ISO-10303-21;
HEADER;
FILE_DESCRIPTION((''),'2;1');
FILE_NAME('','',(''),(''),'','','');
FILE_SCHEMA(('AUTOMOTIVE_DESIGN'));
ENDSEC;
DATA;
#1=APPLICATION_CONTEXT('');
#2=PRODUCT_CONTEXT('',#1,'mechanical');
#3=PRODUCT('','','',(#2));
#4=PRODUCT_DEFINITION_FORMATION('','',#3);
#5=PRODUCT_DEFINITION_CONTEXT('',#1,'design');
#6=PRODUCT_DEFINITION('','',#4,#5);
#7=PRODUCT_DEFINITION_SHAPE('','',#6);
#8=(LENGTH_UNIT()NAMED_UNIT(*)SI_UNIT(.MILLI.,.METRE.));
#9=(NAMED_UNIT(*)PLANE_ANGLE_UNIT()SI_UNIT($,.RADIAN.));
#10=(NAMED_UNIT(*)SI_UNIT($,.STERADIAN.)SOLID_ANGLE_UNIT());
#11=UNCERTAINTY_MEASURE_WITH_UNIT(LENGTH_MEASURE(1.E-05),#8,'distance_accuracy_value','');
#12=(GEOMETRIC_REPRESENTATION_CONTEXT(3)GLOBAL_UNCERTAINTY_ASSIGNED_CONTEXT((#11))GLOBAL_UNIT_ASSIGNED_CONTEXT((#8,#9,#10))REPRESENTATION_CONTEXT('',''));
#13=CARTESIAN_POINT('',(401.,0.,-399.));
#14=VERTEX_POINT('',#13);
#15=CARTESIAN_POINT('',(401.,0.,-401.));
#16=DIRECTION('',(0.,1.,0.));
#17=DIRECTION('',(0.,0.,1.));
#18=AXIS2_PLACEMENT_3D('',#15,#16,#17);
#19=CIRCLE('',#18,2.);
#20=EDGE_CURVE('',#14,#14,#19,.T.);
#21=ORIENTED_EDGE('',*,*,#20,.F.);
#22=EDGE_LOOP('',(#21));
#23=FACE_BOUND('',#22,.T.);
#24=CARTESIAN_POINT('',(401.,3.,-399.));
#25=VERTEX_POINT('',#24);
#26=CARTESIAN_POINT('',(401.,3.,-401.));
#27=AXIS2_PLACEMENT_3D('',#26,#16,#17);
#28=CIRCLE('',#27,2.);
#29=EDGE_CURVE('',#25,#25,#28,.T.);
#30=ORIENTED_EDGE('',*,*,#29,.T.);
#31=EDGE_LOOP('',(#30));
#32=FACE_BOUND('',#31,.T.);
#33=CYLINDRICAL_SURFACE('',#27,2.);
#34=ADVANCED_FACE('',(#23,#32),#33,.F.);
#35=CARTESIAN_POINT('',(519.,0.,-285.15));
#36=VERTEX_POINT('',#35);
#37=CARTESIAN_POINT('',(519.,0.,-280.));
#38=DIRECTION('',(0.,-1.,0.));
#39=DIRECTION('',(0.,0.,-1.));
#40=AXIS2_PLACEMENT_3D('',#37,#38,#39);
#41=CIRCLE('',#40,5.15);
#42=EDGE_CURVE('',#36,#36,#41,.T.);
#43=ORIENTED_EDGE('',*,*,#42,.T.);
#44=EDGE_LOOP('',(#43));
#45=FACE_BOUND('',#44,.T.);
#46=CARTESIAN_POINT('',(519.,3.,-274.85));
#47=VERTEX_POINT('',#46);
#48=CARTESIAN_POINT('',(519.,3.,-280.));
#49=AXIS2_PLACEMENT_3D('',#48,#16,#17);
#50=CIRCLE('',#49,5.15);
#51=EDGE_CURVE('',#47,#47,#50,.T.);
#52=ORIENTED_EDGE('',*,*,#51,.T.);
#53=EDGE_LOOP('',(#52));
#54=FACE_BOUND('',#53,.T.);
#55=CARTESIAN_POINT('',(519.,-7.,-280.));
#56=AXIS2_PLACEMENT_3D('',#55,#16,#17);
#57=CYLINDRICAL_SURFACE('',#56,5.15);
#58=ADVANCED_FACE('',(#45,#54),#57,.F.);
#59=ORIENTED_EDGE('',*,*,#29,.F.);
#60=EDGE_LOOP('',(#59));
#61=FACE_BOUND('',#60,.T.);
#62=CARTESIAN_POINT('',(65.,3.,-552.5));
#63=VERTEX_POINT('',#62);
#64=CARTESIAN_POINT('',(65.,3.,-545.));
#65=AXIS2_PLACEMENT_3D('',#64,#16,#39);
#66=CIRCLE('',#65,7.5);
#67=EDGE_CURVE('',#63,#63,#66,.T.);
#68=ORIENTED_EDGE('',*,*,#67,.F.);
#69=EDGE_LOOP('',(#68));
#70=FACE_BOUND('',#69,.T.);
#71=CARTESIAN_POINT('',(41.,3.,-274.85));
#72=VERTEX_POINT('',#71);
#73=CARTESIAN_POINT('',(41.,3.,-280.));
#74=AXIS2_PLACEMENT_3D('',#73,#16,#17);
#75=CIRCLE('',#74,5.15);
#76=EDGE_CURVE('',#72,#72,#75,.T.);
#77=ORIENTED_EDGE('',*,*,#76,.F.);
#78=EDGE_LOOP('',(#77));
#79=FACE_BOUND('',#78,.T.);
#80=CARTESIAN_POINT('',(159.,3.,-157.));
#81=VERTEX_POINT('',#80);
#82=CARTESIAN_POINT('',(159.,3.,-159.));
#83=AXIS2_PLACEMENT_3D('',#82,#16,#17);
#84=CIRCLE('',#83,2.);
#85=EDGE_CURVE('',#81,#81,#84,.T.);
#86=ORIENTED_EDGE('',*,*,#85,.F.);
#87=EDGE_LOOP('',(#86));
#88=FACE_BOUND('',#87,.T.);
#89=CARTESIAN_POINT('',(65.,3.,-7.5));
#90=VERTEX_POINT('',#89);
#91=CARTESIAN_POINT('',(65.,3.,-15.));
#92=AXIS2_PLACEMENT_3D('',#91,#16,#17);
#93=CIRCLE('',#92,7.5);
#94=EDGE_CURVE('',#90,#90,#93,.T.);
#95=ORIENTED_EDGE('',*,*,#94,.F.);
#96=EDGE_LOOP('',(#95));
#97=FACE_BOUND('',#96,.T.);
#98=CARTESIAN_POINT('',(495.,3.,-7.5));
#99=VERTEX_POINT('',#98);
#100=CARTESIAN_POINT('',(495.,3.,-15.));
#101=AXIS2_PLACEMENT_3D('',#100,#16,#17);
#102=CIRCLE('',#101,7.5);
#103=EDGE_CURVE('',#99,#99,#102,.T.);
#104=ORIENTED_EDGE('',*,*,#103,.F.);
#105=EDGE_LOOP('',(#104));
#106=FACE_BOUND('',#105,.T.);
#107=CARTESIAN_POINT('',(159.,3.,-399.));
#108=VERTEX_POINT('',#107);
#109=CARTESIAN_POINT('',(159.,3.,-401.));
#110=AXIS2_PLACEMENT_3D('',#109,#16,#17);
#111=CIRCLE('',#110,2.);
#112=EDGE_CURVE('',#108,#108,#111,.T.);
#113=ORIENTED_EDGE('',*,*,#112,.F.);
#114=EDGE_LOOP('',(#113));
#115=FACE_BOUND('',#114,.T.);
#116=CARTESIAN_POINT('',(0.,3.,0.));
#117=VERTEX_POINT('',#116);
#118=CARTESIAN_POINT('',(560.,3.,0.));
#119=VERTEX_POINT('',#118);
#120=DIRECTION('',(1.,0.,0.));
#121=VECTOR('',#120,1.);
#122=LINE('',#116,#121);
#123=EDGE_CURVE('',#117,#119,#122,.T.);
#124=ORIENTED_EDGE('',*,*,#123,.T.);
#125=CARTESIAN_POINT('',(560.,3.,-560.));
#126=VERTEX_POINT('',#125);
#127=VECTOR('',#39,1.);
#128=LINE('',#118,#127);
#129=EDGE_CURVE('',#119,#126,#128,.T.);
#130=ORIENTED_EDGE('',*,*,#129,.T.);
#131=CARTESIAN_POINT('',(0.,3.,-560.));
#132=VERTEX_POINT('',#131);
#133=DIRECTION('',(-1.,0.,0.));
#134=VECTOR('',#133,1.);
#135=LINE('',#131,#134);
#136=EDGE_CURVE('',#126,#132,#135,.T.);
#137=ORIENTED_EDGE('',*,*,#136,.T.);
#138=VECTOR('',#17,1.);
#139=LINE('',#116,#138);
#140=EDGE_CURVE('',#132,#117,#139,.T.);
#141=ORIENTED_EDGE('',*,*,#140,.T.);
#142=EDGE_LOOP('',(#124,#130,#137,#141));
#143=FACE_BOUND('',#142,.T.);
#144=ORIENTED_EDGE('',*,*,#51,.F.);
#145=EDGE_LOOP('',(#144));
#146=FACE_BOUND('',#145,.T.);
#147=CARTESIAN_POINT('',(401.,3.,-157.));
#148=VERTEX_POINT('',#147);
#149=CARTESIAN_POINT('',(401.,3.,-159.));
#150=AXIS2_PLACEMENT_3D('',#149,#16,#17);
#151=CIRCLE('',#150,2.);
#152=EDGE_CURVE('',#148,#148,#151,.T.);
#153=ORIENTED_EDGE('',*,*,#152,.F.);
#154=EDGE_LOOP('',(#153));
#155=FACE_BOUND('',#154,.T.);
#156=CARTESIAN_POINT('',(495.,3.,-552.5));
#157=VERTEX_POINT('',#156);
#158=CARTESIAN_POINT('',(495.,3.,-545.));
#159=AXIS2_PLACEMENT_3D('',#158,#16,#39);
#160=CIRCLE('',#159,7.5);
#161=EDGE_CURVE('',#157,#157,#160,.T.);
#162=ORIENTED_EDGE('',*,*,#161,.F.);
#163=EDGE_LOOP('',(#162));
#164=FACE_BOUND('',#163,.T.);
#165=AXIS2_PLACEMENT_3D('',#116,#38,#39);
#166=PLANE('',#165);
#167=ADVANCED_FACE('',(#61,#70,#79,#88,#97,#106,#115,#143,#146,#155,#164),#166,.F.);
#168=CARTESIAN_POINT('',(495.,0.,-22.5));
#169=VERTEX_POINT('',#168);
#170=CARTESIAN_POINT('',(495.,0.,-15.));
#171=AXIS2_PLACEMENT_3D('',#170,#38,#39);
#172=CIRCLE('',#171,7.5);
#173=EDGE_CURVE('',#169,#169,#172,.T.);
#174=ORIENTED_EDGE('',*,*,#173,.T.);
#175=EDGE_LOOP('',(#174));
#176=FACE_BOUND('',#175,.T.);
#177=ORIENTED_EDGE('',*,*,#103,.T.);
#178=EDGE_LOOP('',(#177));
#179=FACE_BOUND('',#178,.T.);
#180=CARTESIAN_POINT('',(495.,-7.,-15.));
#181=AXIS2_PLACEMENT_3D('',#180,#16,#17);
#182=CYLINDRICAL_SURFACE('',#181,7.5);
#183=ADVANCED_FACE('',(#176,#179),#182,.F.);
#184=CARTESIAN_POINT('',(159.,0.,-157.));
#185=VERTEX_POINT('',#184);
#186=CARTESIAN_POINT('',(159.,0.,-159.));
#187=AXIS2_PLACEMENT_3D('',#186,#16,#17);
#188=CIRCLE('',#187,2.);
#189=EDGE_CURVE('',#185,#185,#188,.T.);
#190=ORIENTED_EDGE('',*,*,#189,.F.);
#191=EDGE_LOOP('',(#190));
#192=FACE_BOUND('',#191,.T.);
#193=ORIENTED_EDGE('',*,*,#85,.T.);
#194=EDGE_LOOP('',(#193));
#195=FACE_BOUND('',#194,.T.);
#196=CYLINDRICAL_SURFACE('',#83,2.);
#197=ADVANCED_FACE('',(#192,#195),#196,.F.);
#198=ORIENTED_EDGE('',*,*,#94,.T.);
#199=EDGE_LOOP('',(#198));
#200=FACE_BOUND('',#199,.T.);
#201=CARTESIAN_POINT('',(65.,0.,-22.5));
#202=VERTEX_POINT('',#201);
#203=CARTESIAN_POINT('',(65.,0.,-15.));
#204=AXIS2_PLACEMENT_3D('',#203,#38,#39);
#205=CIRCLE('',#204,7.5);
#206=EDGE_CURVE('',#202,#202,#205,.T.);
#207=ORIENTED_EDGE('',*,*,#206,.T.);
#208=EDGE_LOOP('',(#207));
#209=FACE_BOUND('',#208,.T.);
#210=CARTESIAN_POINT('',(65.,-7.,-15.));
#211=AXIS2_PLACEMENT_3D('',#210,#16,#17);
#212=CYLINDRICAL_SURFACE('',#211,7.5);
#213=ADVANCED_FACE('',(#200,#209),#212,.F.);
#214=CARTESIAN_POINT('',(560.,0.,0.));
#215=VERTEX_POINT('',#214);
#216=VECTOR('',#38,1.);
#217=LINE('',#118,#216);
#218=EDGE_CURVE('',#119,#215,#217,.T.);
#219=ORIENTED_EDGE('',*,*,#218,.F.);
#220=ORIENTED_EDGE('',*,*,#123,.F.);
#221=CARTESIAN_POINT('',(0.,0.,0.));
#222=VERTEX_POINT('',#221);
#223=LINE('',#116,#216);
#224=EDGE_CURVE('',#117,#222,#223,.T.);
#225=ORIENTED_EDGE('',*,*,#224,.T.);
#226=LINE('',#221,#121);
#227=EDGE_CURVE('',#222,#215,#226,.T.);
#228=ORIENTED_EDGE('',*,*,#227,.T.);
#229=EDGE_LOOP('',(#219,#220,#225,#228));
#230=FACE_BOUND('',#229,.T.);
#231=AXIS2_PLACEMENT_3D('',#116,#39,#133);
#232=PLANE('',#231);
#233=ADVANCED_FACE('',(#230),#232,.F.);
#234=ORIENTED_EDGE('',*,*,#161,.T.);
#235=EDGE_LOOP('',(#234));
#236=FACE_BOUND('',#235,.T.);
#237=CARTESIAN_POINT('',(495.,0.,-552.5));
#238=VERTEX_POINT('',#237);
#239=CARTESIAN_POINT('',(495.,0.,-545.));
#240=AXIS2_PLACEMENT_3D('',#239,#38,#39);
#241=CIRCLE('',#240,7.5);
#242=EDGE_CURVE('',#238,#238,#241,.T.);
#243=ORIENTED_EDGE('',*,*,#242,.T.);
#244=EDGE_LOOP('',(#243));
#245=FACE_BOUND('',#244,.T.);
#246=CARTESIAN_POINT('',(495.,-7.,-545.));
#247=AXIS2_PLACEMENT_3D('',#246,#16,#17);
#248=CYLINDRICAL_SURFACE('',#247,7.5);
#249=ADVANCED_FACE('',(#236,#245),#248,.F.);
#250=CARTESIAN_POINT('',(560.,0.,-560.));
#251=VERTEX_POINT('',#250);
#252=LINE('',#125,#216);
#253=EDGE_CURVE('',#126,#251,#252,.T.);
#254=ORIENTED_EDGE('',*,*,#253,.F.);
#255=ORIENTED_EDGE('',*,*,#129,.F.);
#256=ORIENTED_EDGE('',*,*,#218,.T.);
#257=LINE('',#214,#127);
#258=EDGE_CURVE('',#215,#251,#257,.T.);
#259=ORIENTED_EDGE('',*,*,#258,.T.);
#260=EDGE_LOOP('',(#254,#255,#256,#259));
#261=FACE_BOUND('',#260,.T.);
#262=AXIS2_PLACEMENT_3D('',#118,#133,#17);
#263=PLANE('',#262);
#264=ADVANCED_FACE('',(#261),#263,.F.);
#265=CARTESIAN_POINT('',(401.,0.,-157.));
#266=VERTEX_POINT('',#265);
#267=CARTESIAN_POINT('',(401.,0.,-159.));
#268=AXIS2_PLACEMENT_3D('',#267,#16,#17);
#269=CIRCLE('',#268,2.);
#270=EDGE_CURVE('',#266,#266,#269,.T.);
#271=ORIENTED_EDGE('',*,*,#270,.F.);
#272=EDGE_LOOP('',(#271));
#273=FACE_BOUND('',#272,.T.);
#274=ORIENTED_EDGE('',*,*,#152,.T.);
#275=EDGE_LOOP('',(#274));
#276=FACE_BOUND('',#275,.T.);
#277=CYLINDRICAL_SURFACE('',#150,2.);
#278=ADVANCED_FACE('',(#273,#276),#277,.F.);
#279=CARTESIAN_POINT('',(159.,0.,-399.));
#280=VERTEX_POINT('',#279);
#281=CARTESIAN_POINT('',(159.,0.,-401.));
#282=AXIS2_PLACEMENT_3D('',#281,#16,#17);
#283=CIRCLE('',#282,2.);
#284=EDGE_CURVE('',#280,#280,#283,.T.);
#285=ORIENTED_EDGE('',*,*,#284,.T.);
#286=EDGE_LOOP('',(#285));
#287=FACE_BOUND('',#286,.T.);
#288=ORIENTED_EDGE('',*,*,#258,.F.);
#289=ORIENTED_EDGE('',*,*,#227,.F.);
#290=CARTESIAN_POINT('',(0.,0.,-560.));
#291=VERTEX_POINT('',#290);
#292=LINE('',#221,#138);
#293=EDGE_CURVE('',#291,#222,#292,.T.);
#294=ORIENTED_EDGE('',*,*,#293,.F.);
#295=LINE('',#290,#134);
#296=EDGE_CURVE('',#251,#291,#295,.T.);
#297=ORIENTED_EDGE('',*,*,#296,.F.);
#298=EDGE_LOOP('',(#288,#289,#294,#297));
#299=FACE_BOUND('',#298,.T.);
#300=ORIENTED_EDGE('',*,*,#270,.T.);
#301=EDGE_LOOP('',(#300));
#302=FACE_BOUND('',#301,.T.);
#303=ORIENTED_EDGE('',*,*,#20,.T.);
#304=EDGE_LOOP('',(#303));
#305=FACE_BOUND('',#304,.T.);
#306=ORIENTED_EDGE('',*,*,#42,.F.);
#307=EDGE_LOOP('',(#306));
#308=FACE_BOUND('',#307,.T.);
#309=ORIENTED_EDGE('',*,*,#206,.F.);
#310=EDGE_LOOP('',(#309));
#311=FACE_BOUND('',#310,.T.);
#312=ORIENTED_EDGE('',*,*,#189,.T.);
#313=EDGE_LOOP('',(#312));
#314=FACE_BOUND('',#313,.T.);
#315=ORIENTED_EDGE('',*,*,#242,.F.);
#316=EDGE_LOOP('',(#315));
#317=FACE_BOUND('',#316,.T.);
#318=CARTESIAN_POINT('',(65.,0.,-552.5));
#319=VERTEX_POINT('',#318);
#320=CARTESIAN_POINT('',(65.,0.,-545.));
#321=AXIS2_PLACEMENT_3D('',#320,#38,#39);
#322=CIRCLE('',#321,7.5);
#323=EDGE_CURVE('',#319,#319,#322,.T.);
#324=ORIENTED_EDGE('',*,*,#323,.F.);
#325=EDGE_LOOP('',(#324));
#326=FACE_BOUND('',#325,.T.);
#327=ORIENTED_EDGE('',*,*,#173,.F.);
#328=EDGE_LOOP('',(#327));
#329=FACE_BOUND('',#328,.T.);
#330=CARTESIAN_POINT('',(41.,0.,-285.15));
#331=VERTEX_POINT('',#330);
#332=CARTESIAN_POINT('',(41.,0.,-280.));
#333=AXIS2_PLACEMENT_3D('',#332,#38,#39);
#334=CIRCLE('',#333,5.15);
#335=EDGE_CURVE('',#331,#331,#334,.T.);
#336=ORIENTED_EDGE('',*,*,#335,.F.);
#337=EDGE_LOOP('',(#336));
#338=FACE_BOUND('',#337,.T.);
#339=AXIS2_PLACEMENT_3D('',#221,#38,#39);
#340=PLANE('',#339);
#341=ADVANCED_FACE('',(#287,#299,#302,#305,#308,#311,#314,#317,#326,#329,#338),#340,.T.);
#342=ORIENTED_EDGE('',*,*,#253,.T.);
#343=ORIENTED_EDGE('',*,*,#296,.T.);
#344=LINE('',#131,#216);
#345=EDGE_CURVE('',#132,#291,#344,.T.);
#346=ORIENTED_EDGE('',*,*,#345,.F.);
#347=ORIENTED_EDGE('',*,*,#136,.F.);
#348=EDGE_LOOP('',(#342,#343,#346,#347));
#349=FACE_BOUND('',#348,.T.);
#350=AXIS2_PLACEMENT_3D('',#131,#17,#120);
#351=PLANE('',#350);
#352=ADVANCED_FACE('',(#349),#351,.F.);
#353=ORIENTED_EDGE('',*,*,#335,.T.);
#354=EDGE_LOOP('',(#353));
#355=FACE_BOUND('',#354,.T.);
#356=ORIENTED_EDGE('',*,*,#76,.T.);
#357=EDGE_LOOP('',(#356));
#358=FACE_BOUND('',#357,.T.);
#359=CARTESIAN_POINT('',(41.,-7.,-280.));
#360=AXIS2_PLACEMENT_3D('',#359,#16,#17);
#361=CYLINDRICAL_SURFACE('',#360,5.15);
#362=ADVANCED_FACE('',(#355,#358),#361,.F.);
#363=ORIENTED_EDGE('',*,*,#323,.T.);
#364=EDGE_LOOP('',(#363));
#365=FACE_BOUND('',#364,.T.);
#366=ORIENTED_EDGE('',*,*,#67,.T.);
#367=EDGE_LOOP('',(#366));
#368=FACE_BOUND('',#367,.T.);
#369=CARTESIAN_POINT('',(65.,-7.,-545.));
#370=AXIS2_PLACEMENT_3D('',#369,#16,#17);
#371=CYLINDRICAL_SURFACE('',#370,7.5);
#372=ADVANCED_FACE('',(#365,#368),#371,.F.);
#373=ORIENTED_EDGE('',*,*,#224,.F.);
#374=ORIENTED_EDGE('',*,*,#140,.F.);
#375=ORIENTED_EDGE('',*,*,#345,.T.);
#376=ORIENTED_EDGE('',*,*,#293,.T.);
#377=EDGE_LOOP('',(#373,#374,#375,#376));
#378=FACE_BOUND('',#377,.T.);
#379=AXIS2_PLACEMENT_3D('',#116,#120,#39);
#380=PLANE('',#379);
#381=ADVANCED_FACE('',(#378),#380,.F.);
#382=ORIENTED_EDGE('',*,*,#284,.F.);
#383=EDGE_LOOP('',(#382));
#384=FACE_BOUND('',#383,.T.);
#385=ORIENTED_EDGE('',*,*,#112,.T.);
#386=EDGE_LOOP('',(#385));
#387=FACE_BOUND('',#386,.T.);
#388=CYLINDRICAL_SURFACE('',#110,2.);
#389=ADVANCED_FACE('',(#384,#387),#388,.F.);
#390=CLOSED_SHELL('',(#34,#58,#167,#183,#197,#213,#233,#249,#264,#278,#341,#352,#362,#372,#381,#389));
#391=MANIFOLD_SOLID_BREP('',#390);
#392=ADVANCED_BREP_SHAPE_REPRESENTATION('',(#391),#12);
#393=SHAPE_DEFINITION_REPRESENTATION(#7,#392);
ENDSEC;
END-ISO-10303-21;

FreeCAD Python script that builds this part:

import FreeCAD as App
import Part
import Sketcher

doc = App.newDocument("Part")
body = doc.addObject("PartDesign::Body", "Body")

# Sketch on XZ plane
sketch1 = body.newObject("Sketcher::SketchObject", "Sketch")
sketch1.AttachmentSupport = (doc.getObject("XZ_Plane"), [""])
sketch1.MapMode = "FlatFace"
sketch1.addGeometry([
    Part.LineSegment(App.Vector(0, -560, 0), App.Vector(0, 0, 0)),
    Part.LineSegment(App.Vector(0, 0, 0), App.Vector(560, 0, 0)),
    Part.LineSegment(App.Vector(560, 0, 0), App.Vector(560, -560, 0)),
    Part.LineSegment(App.Vector(560, -560, 0), App.Vector(0, -560, 0)),
], False)
sketch1.addConstraint([
    Sketcher.Constraint("Coincident", 0, 2, 1, 1),
    Sketcher.Constraint("Coincident", 1, 2, 2, 1),
    Sketcher.Constraint("Coincident", 2, 2, 3, 1),
    Sketcher.Constraint("Coincident", 3, 2, 0, 1),
    Sketcher.Constraint("Vertical", 0),
    Sketcher.Constraint("Horizontal", 1),
    Sketcher.Constraint("Vertical", 2),
    Sketcher.Constraint("Horizontal", 3),
    Sketcher.Constraint("Coincident", 0, 2, -1, 1),
    Sketcher.Constraint("Equal", 3, 0),
    Sketcher.Constraint("DistanceX", 1, 1, 1, 2, 560.0),
])
pad1 = body.newObject("PartDesign::Pad", "Pad")
pad1.Profile = sketch1
pad1.Length = 3
pad1.Reversed = True

# Sketch on XZ plane
sketch2 = body.newObject("Sketcher::SketchObject", "Sketch001")
sketch2.AttachmentSupport = (doc.getObject("XZ_Plane"), [""])
sketch2.MapMode = "FlatFace"
sketch2.AttachmentOffset = App.Placement(App.Vector(0, 0, -3), App.Rotation())
sketch2.addGeometry([
    Part.Circle(App.Vector(159, -159, 0), App.Vector(0, 0, 1), 2),
    Part.Circle(App.Vector(401, -159, 0), App.Vector(0, 0, 1), 2),
    Part.Circle(App.Vector(401, -401, 0), App.Vector(0, 0, 1), 2),
    Part.Circle(App.Vector(159, -401, 0), App.Vector(0, 0, 1), 2),
], False)
sketch2.addConstraint([
    Sketcher.Constraint("Equal", 0, 1),
    Sketcher.Constraint("Equal", 1, 2),
    Sketcher.Constraint("Equal", 2, 3),
    Sketcher.Constraint("Horizontal", 0, 3, 1, 3),
    Sketcher.Constraint("Horizontal", 2, 3, 3, 3),
    Sketcher.Constraint("Vertical", 1, 3, 2, 3),
    Sketcher.Constraint("Vertical", 0, 3, 3, 3),
    Sketcher.Constraint("Diameter", 0, 4.0),
    Sketcher.Constraint("DistanceX", -1, 1, 0, 3, 159.0),
    Sketcher.Constraint("DistanceY", 0, 3, -1, 1, 159.0),
    Sketcher.Constraint("DistanceX", -1, 1, 1, 3, 401.0),
    Sketcher.Constraint("DistanceY", 2, 3, -1, 1, 401.0),
])
doc.recompute()
hole = body.newObject("PartDesign::Hole", "Hole")
hole.Profile = sketch2
hole.ThreadType = "None"
hole.Diameter = 4
hole.DepthType = "ThroughAll"
hole.Reversed = True

# Sketch on XZ plane
sketch3 = body.newObject("Sketcher::SketchObject", "Sketch002")
sketch3.AttachmentSupport = (doc.getObject("XZ_Plane"), [""])
sketch3.MapMode = "FlatFace"
sketch3.AttachmentOffset = App.Placement(App.Vector(0, 0, -3), App.Rotation())
sketch3.addGeometry([
    Part.Circle(App.Vector(41, -280, 0), App.Vector(0, 0, 1), 5.15),
    Part.Circle(App.Vector(519, -280, 0), App.Vector(0, 0, 1), 5.15),
], False)
sketch3.addConstraint([
    Sketcher.Constraint("Equal", 0, 1),
    Sketcher.Constraint("Horizontal", 0, 3, 1, 3),
    Sketcher.Constraint("Diameter", 0, 10.3),
    Sketcher.Constraint("DistanceX", -1, 1, 0, 3, 41.0),
    Sketcher.Constraint("DistanceY", 0, 3, -1, 1, 280.0),
    Sketcher.Constraint("DistanceX", -1, 1, 1, 3, 519.0),
])
pocket1 = body.newObject("PartDesign::Pocket", "Pocket")
pocket1.Profile = sketch3
pocket1.Length = 10
pocket1.Reversed = True

# Sketch on XZ plane
sketch4 = body.newObject("Sketcher::SketchObject", "Sketch003")
sketch4.AttachmentSupport = (doc.getObject("XZ_Plane"), [""])
sketch4.MapMode = "FlatFace"
sketch4.AttachmentOffset = App.Placement(App.Vector(0, 0, -3), App.Rotation())
sketch4.addGeometry([
    Part.Circle(App.Vector(495, -15, 0), App.Vector(0, 0, 1), 7.5),
    Part.Circle(App.Vector(65, -15, 0), App.Vector(0, 0, 1), 7.5),
    Part.Circle(App.Vector(495, -545, 0), App.Vector(0, 0, 1), 7.5),
    Part.Circle(App.Vector(65, -545, 0), App.Vector(0, 0, 1), 7.5),
], False)
sketch4.addConstraint([
    Sketcher.Constraint("Equal", 0, 1),
    Sketcher.Constraint("Equal", 1, 2),
    Sketcher.Constraint("Equal", 2, 3),
    Sketcher.Constraint("Horizontal", 0, 3, 1, 3),
    Sketcher.Constraint("Horizontal", 2, 3, 3, 3),
    Sketcher.Constraint("Vertical", 0, 3, 2, 3),
    Sketcher.Constraint("Vertical", 1, 3, 3, 3),
    Sketcher.Constraint("Diameter", 0, 15.0),
    Sketcher.Constraint("DistanceX", -1, 1, 0, 3, 495.0),
    Sketcher.Constraint("DistanceY", 0, 3, -1, 1, 15.0),
    Sketcher.Constraint("DistanceX", -1, 1, 1, 3, 65.0),
    Sketcher.Constraint("DistanceY", 2, 3, -1, 1, 545.0),
])
pocket2 = body.newObject("PartDesign::Pocket", "Pocket001")
pocket2.Profile = sketch4
pocket2.Length = 10
pocket2.Reversed = True

doc.recompute()
